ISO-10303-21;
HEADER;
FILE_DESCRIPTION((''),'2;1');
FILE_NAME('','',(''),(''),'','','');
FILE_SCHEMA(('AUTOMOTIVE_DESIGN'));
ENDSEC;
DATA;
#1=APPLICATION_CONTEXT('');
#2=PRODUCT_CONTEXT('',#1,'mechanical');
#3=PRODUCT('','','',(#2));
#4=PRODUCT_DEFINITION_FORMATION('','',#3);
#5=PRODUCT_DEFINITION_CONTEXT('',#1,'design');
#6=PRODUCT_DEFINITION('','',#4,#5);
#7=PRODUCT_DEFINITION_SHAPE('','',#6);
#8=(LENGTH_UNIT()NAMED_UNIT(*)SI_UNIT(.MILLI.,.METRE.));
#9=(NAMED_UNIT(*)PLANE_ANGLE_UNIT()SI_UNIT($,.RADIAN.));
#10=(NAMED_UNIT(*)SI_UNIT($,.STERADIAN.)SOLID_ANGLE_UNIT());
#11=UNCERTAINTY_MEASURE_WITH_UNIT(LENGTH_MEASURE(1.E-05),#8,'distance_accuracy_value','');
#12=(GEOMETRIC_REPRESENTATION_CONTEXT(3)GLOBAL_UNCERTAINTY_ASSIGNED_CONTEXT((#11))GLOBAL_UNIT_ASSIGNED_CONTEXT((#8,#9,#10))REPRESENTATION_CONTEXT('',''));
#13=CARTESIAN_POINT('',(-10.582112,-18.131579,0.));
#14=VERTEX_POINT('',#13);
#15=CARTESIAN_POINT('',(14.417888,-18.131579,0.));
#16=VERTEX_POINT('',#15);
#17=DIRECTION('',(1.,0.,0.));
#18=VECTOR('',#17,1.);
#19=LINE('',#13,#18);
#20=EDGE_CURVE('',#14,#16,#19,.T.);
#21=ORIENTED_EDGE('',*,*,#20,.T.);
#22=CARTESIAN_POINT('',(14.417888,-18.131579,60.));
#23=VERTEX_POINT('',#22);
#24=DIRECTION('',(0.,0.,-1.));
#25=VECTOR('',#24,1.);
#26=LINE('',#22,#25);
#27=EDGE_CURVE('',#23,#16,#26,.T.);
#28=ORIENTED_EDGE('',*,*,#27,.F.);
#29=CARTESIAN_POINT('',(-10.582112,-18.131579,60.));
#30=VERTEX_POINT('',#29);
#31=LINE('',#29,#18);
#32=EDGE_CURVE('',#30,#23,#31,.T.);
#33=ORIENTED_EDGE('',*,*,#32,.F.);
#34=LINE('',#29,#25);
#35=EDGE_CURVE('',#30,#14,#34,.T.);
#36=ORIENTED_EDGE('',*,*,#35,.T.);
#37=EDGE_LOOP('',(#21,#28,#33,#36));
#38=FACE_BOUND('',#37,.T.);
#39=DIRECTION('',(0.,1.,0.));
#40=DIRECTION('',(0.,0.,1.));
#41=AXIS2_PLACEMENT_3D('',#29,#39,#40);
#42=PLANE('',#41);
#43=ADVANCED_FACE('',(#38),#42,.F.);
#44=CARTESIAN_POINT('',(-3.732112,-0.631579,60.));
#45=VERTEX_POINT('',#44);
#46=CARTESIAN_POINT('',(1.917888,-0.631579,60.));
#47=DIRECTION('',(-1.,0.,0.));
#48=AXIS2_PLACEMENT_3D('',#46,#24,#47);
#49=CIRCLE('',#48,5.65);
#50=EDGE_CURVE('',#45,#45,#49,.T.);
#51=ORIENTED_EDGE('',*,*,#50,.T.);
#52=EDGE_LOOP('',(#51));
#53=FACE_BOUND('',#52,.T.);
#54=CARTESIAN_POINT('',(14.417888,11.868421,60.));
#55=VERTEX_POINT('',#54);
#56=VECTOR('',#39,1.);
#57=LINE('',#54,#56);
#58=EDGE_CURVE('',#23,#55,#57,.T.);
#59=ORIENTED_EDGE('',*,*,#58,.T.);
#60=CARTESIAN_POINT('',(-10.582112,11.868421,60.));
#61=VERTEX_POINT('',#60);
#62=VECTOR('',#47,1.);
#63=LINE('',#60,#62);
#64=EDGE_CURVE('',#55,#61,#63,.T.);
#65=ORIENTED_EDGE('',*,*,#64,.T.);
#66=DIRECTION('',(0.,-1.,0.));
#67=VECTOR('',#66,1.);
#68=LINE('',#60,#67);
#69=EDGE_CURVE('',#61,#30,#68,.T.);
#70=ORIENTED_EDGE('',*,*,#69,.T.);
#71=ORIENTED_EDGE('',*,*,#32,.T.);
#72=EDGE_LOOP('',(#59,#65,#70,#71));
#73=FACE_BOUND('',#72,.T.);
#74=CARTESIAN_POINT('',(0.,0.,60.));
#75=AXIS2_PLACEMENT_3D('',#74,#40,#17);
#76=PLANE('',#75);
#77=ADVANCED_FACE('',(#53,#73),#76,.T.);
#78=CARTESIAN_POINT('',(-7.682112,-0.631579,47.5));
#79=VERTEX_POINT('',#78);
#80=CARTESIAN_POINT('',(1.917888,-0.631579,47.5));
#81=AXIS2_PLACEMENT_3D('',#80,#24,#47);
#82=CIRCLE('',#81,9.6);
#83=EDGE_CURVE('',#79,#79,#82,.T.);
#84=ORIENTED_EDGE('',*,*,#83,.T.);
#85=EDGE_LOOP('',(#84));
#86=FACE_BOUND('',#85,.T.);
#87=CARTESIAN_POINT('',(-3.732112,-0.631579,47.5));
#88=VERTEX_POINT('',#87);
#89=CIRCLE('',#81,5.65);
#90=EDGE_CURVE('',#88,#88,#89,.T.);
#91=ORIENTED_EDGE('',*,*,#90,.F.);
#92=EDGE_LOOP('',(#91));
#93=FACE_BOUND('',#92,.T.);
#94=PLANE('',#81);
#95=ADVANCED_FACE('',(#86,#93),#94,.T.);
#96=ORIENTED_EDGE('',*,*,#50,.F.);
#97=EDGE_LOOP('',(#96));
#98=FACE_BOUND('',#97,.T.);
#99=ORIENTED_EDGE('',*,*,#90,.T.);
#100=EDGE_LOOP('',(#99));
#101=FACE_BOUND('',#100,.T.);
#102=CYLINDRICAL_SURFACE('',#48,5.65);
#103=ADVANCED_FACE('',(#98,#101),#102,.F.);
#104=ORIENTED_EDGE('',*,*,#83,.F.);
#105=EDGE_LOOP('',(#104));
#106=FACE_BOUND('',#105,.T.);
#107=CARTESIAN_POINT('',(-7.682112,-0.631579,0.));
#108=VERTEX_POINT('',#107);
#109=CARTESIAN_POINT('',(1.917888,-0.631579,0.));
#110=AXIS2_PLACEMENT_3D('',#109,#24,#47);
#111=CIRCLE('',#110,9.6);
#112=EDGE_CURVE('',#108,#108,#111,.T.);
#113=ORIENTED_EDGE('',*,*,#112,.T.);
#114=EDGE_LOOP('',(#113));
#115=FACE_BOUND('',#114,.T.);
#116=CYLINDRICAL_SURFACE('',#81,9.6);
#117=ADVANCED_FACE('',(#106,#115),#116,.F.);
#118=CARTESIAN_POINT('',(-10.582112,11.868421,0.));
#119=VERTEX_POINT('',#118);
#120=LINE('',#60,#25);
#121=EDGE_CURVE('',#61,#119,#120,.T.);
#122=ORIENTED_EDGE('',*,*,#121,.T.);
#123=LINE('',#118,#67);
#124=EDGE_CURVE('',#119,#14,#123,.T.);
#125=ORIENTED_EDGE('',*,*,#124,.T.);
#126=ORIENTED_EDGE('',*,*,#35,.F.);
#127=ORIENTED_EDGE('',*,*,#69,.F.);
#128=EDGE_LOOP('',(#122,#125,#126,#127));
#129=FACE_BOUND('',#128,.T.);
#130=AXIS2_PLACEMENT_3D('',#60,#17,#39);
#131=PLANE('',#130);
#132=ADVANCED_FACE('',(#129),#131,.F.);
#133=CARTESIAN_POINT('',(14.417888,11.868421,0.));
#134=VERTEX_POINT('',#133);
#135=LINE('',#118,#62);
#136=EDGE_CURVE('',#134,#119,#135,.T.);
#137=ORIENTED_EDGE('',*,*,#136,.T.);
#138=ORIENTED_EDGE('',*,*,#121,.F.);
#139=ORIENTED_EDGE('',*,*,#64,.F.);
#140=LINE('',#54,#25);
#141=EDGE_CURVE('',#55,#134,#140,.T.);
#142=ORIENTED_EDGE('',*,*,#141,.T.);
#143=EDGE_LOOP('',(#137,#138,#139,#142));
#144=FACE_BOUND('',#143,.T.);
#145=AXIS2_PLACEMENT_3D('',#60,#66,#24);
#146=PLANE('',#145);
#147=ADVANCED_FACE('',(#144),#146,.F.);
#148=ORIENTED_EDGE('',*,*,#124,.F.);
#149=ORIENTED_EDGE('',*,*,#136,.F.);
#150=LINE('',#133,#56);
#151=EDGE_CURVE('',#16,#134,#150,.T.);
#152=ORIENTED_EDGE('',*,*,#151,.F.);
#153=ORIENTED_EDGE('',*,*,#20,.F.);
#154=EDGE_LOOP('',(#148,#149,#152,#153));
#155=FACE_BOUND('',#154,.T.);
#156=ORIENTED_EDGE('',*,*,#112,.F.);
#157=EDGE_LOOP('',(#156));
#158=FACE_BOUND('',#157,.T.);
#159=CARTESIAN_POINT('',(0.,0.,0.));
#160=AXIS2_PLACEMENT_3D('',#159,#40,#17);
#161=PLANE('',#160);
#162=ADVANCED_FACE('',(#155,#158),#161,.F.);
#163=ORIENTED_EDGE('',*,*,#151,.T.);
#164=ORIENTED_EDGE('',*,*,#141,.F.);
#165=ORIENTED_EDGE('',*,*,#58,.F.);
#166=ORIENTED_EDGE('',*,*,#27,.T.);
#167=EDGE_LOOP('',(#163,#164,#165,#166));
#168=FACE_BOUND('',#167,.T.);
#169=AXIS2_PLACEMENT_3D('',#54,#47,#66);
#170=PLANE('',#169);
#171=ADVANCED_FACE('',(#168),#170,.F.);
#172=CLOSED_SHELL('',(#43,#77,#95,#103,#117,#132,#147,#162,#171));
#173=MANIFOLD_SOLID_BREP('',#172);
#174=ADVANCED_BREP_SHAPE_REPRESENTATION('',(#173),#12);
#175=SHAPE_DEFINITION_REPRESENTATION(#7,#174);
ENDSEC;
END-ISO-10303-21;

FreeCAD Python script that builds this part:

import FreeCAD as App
import Part
import Sketcher
from FreeCAD import Vector


def add_polygon(sketch, points):
    """Adds a closed chain of lines whose ends are joined by coincident constraints."""
    first, n = sketch.GeometryCount, len(points)
    for a, b in zip(points, points[1:] + points[:1]):
        sketch.addGeometry(Part.LineSegment(App.Vector(*a, 0), App.Vector(*b, 0)), False)
    for i in range(n):
        sketch.addConstraint(Sketcher.Constraint("Coincident", first + i, 2, first + (i + 1) % n, 1))

doc = App.newDocument("Part")
params = doc.addObject("Spreadsheet::Sheet", "Params")
for row, (alias, value) in enumerate([
    ("sketch1_width", "25 mm"),
    ("sketch1_height", "30 mm"),
    ("pad1_length", "60 mm"),
    ("sketch2_diameter", "19.2 mm"),
    ("pocket1_length", "47.5 mm"),
    ("sketch3_diameter", "11.3 mm"),
], start=1):
    params.set(f"A{row}", alias)
    params.set(f"B{row}", "=" + value)
    params.setAlias(f"B{row}", alias)

body = doc.addObject("PartDesign::Body", "Body")

sketch1 = body.newObject("Sketcher::SketchObject", "Sketch")
sketch1.AttachmentSupport = (doc.getObject("XY_Plane"), [""])
sketch1.MapMode = "FlatFace"
add_polygon(sketch1, [(-10.582112, 11.868421), (-10.582112, -18.131579), (14.417888, -18.131579), (14.417888, 11.868421)])
sketch1.addConstraint(Sketcher.Constraint("Vertical", 0))
sketch1.addConstraint(Sketcher.Constraint("Horizontal", 1))
sketch1.addConstraint(Sketcher.Constraint("Vertical", 2))
sketch1.addConstraint(Sketcher.Constraint("Horizontal", 3))
sketch1.addConstraint(Sketcher.Constraint("DistanceX", 1, 1, 1, 2, 25.0))
sketch1.addConstraint(Sketcher.Constraint("DistanceY", 0, 2, 0, 1, 30.0))
sketch1.addConstraint(Sketcher.Constraint("DistanceY", 0, 2, -1, 1, 18.131579))
sketch1.addConstraint(Sketcher.Constraint("DistanceX", 0, 2, -1, 1, 10.582112))
sketch1.setExpression("Constraints[8]", "Params.sketch1_width")
sketch1.setExpression("Constraints[9]", "Params.sketch1_height")
pad1 = body.newObject("PartDesign::Pad", "Pad")
pad1.Profile = sketch1
pad1.setExpression("Length", "Params.pad1_length")

sketch2 = body.newObject("Sketcher::SketchObject", "Sketch001")
sketch2.AttachmentSupport = (doc.getObject("XY_Plane"), [""])
sketch2.MapMode = "FlatFace"
sketch2.addGeometry(Part.Circle(Vector(1.917888, -0.631579, 0), Vector(0, 0, 1), 9.6), False)
sketch2.addConstraint(Sketcher.Constraint("Diameter", 0, 19.2))
sketch2.addConstraint(Sketcher.Constraint("DistanceY", 0, 3, -1, 1, 0.631579))
sketch2.addConstraint(Sketcher.Constraint("DistanceX", -1, 1, 0, 3, 1.917888))
sketch2.setExpression("Constraints[0]", "Params.sketch2_diameter")
pocket1 = body.newObject("PartDesign::Pocket", "Pocket")
pocket1.Profile = sketch2
pocket1.setExpression("Length", "Params.pocket1_length")
pocket1.Reversed = True

sketch3 = body.newObject("Sketcher::SketchObject", "Sketch002")
sketch3.AttachmentSupport = (doc.getObject("XY_Plane"), [""])
sketch3.MapMode = "FlatFace"
sketch3.AttachmentOffset = App.Placement(Vector(0, 0, 47.5), App.Rotation())
sketch3.addGeometry(Part.Circle(Vector(1.917888, -0.631579, 0), Vector(0, 0, 1), 5.65), False)
sketch3.addConstraint(Sketcher.Constraint("Diameter", 0, 11.3))
sketch3.addConstraint(Sketcher.Constraint("DistanceY", 0, 3, -1, 1, 0.631579))
sketch3.addConstraint(Sketcher.Constraint("DistanceX", -1, 1, 0, 3, 1.917888))
sketch3.setExpression("Constraints[0]", "Params.sketch3_diameter")
pocket2 = body.newObject("PartDesign::Pocket", "Pocket001")
pocket2.Profile = sketch3
pocket2.Type = "ThroughAll"
pocket2.Reversed = True

doc.recompute()
